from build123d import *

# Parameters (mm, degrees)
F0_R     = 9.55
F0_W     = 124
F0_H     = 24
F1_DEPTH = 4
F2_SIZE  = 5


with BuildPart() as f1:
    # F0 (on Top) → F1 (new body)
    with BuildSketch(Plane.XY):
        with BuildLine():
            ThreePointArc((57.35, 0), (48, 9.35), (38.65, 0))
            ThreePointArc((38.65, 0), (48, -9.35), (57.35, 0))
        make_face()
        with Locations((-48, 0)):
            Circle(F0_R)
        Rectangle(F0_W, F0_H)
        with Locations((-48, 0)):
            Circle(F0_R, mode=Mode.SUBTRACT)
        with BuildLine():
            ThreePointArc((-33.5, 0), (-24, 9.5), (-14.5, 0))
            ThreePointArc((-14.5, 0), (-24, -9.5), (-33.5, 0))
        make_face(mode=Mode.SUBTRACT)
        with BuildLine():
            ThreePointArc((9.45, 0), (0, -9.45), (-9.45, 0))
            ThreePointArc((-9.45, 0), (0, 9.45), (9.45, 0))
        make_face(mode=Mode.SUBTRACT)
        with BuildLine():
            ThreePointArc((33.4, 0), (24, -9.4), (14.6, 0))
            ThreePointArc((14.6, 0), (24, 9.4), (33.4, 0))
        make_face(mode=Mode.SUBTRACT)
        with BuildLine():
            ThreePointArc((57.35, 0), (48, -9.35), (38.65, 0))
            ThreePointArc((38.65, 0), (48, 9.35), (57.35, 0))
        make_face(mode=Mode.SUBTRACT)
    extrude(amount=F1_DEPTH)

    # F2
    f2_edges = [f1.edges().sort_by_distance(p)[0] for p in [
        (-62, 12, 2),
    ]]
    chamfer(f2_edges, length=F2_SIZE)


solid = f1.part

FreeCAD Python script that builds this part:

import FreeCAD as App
import Part
import Sketcher
Q = App.Units.Quantity


def edges_at(feature, points):
    """Names of the edges that pass closest to the given points."""
    edges = feature.Shape.Edges
    near = lambda p: min(range(len(edges)), key=lambda i: edges[i].distToShape(Part.Vertex(*p))[0])
    return sorted({f"Edge{near(p) + 1}" for p in points})

doc = App.newDocument("Part")
body = doc.addObject("PartDesign::Body", "Body")

# Sketch on XY plane
sketch1 = doc.addObject("Sketcher::SketchObject", "Sketch")
body.addObject(sketch1)
sketch1.AttachmentSupport = (doc.XY_Plane, [""])
sketch1.MapMode = "FlatFace"
sketch1.addGeometry([
    Part.LineSegment(App.Vector(-62, 12, 0), App.Vector(-62, -12, 0)),  # 0
    Part.LineSegment(App.Vector(-62, -12, 0), App.Vector(62, -12, 0)),  # 1
    Part.LineSegment(App.Vector(62, -12, 0), App.Vector(62, 12, 0)),  # 2
    Part.LineSegment(App.Vector(62, 12, 0), App.Vector(-62, 12, 0)),  # 3
    Part.Circle(App.Vector(-48, 0, 0), App.Vector(0, 0, 1), 9.55),  # 4
    Part.Circle(App.Vector(-24, 0, 0), App.Vector(0, 0, 1), 9.5),  # 5
    Part.Circle(App.Vector(0, 0, 0), App.Vector(0, 0, 1), 9.45),  # 6
    Part.Circle(App.Vector(24, 0, 0), App.Vector(0, 0, 1), 9.4),  # 7
    Part.Circle(App.Vector(48, 0, 0), App.Vector(0, 0, 1), 9.35),  # 8
], False)
sketch1.addConstraint([
    Sketcher.Constraint("Coincident", 0, 2, 1, 1),
    Sketcher.Constraint("Coincident", 1, 2, 2, 1),
    Sketcher.Constraint("Coincident", 2, 2, 3, 1),
    Sketcher.Constraint("Coincident", 3, 2, 0, 1),
    Sketcher.Constraint("Vertical", 0),
    Sketcher.Constraint("Horizontal", 1),
    Sketcher.Constraint("Vertical", 2),
    Sketcher.Constraint("Horizontal", 3),
    Sketcher.Constraint("Coincident", 6, 3, -1, 1),
    Sketcher.Constraint("Symmetric", 5, 3, 7, 3, -1, 1),
    Sketcher.Constraint("Symmetric", 4, 3, 8, 3, -1, 1),
    Sketcher.Constraint("Symmetric", 0, 2, 2, 2, -1, 1),
    Sketcher.Constraint("PointOnObject", 4, 3, -1),
    Sketcher.Constraint("PointOnObject", 5, 3, -1),
    Sketcher.Constraint("Diameter", 5, Q("19 mm")),
    Sketcher.Constraint("Diameter", 4, Q("19.1 mm")),
    Sketcher.Constraint("Diameter", 6, Q("18.9 mm")),
    Sketcher.Constraint("Diameter", 7, Q("18.8 mm")),
    Sketcher.Constraint("Diameter", 8, Q("18.7 mm")),
    Sketcher.Constraint("DistanceX", 1, 1, 1, 2, Q("124 mm")),
    Sketcher.Constraint("DistanceY", 0, 2, 0, 1, Q("24 mm")),
    Sketcher.Constraint("DistanceX", 4, 3, -1, 1, Q("48 mm")),
    Sketcher.Constraint("DistanceX", 5, 3, -1, 1, Q("24 mm")),
])
pad1 = doc.addObject("PartDesign::Pad", "Pad")
body.addObject(pad1)
pad1.Profile = sketch1
pad1.Length = 4
doc.recompute()

chamfer = doc.addObject("PartDesign::Chamfer", "Chamfer")
body.addObject(chamfer)
chamfer.Base = (pad1, edges_at(pad1, [(-62, 12, 2)]))
chamfer.Size = 5

doc.recompute()
